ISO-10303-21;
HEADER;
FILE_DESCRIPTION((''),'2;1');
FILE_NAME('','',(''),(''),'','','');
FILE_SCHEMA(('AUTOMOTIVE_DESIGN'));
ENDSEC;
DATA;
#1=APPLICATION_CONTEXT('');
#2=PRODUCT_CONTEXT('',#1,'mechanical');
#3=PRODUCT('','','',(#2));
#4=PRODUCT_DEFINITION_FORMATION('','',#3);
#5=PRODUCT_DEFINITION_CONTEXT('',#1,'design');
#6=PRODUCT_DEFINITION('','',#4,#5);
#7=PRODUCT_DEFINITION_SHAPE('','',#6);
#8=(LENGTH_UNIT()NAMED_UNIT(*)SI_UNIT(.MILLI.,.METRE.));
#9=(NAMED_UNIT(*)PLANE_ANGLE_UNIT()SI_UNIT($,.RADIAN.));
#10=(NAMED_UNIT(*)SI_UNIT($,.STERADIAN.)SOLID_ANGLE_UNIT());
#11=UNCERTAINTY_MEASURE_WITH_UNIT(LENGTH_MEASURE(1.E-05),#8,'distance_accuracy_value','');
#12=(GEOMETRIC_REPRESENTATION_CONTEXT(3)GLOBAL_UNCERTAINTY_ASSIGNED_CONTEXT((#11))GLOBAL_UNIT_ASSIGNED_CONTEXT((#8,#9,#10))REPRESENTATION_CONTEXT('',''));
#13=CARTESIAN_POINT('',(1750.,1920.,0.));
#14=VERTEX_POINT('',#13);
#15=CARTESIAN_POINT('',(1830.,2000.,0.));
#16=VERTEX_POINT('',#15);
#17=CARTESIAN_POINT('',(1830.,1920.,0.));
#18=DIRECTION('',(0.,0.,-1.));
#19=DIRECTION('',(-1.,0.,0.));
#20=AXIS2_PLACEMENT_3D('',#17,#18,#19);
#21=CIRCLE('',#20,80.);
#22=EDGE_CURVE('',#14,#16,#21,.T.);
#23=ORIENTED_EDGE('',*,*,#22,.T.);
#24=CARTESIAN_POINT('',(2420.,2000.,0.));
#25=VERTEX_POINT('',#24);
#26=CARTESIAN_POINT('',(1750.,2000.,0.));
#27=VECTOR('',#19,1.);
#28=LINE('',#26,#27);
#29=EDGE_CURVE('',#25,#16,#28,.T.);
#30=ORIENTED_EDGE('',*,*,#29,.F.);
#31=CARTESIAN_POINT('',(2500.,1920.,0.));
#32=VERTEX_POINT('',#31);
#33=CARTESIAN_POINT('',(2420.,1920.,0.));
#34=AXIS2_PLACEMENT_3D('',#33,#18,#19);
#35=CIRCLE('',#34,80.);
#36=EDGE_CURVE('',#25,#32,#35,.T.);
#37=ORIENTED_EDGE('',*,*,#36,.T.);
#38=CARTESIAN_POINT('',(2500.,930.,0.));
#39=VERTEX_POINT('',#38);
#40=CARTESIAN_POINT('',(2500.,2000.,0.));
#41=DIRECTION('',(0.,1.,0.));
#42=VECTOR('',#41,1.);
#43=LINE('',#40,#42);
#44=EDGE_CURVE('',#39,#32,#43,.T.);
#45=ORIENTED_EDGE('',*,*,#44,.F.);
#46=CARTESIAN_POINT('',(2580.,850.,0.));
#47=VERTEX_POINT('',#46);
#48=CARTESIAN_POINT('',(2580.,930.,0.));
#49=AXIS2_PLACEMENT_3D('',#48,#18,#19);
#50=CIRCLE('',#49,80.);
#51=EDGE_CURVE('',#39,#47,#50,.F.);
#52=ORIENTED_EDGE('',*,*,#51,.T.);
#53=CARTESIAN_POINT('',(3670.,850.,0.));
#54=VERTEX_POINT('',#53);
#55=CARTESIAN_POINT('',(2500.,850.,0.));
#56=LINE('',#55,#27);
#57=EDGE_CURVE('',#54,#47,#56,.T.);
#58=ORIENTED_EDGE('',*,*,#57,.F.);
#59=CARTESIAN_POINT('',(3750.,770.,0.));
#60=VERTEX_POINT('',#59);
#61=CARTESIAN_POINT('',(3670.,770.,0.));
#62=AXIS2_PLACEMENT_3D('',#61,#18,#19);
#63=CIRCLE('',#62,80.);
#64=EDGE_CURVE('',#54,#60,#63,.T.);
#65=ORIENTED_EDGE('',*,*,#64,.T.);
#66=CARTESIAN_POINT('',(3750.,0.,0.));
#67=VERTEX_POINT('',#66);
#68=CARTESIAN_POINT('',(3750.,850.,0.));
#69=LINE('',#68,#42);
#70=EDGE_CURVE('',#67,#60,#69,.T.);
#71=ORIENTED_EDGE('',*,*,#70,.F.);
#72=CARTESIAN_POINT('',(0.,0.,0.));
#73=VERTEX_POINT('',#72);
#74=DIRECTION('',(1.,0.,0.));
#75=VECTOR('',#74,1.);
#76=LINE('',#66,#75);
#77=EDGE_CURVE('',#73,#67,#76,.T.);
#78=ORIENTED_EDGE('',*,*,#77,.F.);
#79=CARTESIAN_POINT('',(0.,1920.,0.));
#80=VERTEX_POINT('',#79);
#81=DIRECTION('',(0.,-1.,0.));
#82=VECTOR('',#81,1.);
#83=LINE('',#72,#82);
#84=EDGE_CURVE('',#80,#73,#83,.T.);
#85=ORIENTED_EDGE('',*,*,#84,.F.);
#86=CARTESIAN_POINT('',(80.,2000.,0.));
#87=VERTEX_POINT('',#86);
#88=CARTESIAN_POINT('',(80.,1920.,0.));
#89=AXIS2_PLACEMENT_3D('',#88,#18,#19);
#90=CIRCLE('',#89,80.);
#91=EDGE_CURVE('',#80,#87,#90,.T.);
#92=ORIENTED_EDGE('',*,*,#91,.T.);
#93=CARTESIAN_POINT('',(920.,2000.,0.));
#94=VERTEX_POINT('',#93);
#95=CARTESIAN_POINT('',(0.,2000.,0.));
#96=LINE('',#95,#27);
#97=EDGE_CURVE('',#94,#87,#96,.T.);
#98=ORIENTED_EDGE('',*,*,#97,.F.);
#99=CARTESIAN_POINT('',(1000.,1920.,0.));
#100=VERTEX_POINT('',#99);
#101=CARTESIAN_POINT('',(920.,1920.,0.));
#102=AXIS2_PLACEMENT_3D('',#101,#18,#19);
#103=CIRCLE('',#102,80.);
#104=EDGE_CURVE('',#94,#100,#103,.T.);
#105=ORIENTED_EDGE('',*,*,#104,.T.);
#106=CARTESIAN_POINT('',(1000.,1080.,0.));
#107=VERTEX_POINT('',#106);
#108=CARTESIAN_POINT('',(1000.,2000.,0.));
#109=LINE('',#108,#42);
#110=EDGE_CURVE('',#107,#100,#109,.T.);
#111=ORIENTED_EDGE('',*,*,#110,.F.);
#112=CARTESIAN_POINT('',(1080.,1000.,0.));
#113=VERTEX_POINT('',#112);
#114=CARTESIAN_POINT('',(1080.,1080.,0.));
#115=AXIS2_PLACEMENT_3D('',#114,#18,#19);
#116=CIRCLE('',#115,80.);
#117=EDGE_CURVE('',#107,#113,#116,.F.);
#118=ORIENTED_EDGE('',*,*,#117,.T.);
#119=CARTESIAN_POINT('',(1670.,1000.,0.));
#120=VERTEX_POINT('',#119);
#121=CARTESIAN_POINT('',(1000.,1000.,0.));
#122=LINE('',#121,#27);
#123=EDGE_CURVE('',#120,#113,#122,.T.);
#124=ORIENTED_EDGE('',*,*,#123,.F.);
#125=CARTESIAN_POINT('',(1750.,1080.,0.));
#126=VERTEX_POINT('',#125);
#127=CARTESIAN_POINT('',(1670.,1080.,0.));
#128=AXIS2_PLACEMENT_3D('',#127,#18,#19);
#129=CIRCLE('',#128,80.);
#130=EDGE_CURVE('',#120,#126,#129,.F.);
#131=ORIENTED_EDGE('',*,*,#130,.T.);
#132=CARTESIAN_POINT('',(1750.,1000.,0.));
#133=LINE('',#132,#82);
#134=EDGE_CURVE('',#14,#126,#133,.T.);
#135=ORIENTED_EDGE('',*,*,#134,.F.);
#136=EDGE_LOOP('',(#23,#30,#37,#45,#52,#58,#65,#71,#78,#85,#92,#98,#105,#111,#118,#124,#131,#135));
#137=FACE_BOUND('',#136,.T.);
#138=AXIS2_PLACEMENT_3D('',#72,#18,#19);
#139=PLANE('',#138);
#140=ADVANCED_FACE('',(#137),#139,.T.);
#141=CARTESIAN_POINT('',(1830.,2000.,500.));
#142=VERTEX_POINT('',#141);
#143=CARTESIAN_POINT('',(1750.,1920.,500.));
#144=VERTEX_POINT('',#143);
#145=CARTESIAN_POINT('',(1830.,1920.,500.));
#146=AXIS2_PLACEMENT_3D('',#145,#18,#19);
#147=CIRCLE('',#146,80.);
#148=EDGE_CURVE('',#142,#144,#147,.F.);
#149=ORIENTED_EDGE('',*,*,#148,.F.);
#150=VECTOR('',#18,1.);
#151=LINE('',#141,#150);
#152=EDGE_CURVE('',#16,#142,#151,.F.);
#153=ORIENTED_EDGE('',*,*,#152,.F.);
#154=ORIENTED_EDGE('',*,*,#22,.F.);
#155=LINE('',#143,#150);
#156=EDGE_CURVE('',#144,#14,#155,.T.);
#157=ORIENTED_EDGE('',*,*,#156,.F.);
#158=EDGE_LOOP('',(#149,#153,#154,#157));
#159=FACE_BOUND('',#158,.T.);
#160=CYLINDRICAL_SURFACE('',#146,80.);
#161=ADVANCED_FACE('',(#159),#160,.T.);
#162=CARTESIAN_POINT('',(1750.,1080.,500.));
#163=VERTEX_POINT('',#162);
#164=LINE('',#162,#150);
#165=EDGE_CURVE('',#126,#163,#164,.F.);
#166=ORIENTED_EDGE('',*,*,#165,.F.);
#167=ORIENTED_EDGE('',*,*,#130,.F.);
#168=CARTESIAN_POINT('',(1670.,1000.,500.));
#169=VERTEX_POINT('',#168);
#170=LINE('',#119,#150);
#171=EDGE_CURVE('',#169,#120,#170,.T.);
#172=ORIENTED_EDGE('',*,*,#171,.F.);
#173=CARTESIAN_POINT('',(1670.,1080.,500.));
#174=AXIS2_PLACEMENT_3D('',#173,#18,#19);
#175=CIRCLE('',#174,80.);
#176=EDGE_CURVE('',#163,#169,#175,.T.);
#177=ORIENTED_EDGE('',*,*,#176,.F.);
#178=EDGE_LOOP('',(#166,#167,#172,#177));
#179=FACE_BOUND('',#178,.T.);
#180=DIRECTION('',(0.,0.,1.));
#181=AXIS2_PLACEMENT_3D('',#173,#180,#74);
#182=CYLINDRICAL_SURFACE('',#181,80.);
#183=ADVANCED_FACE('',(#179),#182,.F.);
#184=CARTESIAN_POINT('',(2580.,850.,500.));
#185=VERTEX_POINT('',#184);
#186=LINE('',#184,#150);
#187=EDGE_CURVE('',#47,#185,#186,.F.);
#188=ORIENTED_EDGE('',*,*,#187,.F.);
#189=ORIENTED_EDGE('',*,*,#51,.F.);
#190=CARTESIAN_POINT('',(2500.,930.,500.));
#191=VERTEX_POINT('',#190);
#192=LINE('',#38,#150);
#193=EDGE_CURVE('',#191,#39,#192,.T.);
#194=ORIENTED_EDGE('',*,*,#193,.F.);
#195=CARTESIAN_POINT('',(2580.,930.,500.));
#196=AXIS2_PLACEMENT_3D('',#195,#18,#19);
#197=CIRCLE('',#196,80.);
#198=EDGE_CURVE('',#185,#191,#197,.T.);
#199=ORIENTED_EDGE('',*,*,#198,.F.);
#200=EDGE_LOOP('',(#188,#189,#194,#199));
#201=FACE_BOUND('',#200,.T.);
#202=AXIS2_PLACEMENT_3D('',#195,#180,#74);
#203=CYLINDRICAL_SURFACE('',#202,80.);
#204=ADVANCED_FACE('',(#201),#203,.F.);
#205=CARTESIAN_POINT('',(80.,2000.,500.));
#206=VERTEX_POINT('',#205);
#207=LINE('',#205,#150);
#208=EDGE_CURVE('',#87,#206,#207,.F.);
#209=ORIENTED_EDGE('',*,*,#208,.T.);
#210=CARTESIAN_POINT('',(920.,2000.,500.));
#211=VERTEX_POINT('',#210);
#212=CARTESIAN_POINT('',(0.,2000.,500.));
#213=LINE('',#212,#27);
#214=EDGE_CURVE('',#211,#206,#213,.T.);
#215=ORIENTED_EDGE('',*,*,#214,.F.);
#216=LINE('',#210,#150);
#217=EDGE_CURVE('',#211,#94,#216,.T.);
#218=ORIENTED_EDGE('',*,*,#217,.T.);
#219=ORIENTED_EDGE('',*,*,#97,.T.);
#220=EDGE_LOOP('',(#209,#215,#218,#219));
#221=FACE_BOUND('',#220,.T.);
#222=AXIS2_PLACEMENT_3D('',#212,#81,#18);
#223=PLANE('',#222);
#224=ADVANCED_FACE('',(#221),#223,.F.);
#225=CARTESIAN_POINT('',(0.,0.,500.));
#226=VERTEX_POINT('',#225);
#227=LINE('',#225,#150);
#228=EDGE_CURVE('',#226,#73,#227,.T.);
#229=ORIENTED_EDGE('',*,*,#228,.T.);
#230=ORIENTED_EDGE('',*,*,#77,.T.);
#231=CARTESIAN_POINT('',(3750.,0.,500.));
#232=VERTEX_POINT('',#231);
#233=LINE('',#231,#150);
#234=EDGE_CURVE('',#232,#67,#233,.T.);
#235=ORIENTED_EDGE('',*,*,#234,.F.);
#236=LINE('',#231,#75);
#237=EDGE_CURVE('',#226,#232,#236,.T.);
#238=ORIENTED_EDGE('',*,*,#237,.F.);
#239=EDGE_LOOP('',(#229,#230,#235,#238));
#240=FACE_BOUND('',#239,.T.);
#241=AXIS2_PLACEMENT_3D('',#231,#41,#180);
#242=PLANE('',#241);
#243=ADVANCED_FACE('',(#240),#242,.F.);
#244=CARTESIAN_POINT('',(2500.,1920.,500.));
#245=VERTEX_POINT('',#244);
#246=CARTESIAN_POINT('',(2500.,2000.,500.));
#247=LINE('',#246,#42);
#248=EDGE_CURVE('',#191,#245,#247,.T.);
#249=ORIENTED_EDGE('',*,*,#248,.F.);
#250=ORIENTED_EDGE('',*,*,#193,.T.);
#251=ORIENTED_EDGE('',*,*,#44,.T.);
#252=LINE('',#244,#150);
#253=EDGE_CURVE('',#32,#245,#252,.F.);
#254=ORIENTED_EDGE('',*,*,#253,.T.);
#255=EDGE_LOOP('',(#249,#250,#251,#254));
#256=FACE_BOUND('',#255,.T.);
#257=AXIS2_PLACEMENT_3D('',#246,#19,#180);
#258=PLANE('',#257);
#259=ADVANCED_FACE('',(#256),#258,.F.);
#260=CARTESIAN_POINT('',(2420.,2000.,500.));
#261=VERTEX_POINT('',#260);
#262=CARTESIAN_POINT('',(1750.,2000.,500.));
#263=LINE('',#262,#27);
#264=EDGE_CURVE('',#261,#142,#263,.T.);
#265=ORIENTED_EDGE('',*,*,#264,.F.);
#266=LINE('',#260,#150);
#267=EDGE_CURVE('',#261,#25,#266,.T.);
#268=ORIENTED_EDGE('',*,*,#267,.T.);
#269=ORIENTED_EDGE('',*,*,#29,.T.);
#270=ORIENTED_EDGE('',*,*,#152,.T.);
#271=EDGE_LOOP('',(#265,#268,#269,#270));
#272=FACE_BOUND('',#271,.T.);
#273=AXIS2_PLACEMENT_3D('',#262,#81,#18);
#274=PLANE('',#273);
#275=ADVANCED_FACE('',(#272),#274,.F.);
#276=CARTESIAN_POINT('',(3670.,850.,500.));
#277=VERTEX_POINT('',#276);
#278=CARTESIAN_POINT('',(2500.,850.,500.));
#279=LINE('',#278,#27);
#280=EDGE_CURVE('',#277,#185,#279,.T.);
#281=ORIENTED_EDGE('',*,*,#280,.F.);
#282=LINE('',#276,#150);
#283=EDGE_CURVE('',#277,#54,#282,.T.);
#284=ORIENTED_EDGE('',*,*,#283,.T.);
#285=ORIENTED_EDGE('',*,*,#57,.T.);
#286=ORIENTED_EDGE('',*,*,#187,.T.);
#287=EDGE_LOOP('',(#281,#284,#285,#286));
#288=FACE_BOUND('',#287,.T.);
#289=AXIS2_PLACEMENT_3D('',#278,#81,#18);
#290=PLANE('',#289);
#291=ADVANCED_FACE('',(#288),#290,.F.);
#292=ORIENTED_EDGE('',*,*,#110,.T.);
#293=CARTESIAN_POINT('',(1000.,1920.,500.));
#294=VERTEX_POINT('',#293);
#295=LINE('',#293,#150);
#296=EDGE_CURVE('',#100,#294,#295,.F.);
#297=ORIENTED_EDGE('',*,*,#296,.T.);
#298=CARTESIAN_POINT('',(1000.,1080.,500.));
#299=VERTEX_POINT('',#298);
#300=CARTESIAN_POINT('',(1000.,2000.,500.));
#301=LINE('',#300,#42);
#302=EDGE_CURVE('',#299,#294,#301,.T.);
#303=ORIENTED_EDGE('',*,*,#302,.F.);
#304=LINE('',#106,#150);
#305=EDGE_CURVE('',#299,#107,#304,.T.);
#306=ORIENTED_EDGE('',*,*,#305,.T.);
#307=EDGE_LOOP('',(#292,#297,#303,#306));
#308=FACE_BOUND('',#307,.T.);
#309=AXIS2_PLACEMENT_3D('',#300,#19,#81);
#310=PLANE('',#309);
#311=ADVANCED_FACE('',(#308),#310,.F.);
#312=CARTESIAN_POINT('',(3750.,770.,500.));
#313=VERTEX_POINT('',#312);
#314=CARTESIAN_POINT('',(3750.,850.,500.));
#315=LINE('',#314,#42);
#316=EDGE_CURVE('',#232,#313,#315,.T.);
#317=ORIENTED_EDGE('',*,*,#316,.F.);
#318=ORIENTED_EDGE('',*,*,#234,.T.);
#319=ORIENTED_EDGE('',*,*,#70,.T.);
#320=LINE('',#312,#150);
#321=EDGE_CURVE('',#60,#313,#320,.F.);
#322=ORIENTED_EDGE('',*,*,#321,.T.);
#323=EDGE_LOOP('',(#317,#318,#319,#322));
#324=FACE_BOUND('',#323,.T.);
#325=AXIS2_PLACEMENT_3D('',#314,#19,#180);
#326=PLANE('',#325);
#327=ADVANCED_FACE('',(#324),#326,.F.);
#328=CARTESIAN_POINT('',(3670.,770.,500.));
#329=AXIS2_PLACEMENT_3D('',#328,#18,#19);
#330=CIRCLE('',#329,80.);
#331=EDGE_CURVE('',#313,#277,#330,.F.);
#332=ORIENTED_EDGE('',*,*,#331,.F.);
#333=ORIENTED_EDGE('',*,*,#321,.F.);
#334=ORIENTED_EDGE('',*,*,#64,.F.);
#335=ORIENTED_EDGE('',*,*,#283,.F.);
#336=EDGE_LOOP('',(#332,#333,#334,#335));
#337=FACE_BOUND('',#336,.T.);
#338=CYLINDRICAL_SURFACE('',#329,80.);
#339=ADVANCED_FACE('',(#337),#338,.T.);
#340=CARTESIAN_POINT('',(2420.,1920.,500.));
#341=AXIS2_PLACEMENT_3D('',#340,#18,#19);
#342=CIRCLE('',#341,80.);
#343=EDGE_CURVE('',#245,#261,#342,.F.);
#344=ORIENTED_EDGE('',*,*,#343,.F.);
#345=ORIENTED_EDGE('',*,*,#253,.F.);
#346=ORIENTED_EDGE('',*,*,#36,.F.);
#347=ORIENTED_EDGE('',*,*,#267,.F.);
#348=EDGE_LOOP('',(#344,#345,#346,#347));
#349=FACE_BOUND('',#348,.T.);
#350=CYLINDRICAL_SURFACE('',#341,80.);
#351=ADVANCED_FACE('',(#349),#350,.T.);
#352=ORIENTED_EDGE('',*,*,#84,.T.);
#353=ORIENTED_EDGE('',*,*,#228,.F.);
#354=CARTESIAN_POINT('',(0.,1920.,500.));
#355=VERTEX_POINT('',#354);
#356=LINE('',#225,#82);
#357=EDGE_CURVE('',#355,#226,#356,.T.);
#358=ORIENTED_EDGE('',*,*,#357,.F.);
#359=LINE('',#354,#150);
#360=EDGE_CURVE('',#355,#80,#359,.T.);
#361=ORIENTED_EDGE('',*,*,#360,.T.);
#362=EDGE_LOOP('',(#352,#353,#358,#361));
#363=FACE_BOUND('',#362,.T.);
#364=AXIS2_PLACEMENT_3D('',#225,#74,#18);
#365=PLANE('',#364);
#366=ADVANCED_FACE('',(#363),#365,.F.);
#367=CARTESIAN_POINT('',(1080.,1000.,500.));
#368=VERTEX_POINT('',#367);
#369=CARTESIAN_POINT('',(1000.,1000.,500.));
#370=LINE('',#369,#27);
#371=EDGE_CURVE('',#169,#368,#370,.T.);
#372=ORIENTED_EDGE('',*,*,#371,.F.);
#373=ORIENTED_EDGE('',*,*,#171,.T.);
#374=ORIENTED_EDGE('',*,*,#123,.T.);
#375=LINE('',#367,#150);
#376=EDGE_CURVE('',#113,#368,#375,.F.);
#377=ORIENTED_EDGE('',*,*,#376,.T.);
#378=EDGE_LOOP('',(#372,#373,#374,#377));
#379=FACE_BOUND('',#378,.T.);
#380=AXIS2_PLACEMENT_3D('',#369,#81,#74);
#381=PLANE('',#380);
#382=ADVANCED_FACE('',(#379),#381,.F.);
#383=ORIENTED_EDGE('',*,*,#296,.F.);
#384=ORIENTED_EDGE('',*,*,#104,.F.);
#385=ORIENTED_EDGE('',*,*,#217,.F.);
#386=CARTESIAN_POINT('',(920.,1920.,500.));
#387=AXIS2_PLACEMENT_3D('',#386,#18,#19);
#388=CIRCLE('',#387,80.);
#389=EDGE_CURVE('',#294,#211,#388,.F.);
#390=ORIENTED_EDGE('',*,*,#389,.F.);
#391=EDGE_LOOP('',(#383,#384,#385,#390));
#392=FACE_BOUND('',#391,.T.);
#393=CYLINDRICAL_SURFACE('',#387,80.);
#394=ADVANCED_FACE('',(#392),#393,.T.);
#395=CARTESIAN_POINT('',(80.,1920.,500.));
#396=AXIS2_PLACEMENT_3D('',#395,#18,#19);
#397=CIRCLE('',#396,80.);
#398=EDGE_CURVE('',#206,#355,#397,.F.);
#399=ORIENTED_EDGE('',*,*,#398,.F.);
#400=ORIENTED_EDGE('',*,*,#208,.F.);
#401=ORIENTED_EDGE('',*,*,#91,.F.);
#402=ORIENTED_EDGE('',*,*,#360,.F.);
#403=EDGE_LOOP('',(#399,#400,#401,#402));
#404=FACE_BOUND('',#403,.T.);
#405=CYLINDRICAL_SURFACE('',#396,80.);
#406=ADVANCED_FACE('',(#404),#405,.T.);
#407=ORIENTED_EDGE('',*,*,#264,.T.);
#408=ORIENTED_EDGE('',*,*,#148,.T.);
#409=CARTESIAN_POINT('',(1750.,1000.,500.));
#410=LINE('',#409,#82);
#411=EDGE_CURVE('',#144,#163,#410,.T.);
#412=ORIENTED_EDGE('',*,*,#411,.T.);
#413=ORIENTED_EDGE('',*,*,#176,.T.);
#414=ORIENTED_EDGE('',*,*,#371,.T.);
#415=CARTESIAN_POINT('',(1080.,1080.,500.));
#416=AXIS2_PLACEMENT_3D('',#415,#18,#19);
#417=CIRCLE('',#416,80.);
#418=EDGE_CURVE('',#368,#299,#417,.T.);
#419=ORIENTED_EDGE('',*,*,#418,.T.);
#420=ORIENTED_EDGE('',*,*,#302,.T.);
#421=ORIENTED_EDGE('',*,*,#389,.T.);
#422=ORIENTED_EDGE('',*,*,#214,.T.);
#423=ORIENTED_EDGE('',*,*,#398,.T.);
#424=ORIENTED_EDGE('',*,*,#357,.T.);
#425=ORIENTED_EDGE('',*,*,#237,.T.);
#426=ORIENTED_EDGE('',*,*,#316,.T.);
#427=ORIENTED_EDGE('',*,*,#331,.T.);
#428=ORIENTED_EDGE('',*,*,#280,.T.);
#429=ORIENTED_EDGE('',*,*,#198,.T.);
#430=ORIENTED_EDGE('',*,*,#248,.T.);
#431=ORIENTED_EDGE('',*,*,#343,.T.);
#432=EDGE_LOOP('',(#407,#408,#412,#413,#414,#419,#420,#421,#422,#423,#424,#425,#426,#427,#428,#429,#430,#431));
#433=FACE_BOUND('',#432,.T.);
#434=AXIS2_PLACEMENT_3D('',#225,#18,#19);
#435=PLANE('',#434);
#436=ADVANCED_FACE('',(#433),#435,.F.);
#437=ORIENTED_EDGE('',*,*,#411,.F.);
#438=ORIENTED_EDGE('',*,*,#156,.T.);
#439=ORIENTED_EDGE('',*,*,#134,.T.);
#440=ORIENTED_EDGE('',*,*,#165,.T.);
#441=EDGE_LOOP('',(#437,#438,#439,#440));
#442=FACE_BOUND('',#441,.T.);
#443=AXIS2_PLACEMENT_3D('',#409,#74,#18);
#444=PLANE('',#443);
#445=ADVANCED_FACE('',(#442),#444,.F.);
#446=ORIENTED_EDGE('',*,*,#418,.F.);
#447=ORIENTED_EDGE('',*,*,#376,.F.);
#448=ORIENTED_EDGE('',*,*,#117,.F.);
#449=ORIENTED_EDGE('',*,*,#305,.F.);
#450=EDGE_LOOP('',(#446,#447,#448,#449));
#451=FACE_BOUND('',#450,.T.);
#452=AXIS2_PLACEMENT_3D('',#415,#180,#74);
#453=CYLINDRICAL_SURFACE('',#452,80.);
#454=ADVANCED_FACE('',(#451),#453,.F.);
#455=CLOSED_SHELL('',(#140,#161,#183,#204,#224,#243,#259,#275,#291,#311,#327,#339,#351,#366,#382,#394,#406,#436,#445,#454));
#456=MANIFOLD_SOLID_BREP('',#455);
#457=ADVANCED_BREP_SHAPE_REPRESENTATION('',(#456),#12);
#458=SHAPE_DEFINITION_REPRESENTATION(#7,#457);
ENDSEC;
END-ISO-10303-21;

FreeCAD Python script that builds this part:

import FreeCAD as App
import Part
import Sketcher
Q = App.Units.Quantity


def edges_at(feature, points):
    """Names of the edges that pass closest to the given points."""
    edges = feature.Shape.Edges
    near = lambda p: min(range(len(edges)), key=lambda i: edges[i].distToShape(Part.Vertex(*p))[0])
    return sorted({f"Edge{near(p) + 1}" for p in points})

doc = App.newDocument("Part")
body = doc.addObject("PartDesign::Body", "Body")

# Sketch on XY plane
sketch1 = body.newObject("Sketcher::SketchObject", "Sketch")
sketch1.AttachmentSupport = (doc.getObject("XY_Plane"), [""])
sketch1.MapMode = "FlatFace"
sketch1.addGeometry(Part.LineSegment(App.Vector(0, 2000, 0), App.Vector(0, 0, 0)), False)
sketch1.addGeometry(Part.LineSegment(App.Vector(0, 0, 0), App.Vector(3750, 0, 0)), False)
sketch1.addGeometry(Part.LineSegment(App.Vector(3750, 0, 0), App.Vector(3750, 850, 0)), False)
sketch1.addGeometry(Part.LineSegment(App.Vector(3750, 850, 0), App.Vector(2500, 850, 0)), False)
sketch1.addGeometry(Part.LineSegment(App.Vector(2500, 850, 0), App.Vector(2500, 2000, 0)), False)
sketch1.addGeometry(Part.LineSegment(App.Vector(2500, 2000, 0), App.Vector(1750, 2000, 0)), False)
sketch1.addGeometry(Part.LineSegment(App.Vector(1750, 2000, 0), App.Vector(1750, 1000, 0)), False)
sketch1.addGeometry(Part.LineSegment(App.Vector(1750, 1000, 0), App.Vector(1000, 1000, 0)), False)
sketch1.addGeometry(Part.LineSegment(App.Vector(1000, 1000, 0), App.Vector(1000, 2000, 0)), False)
sketch1.addGeometry(Part.LineSegment(App.Vector(1000, 2000, 0), App.Vector(0, 2000, 0)), False)
sketch1.addConstraint(Sketcher.Constraint("Coincident", 0, 2, 1, 1))
sketch1.addConstraint(Sketcher.Constraint("Coincident", 1, 2, 2, 1))
sketch1.addConstraint(Sketcher.Constraint("Coincident", 2, 2, 3, 1))
sketch1.addConstraint(Sketcher.Constraint("Coincident", 3, 2, 4, 1))
sketch1.addConstraint(Sketcher.Constraint("Coincident", 4, 2, 5, 1))
sketch1.addConstraint(Sketcher.Constraint("Coincident", 5, 2, 6, 1))
sketch1.addConstraint(Sketcher.Constraint("Coincident", 6, 2, 7, 1))
sketch1.addConstraint(Sketcher.Constraint("Coincident", 7, 2, 8, 1))
sketch1.addConstraint(Sketcher.Constraint("Coincident", 8, 2, 9, 1))
sketch1.addConstraint(Sketcher.Constraint("Coincident", 9, 2, 0, 1))
sketch1.addConstraint(Sketcher.Constraint("Vertical", 0))
sketch1.addConstraint(Sketcher.Constraint("Horizontal", 1))
sketch1.addConstraint(Sketcher.Constraint("Vertical", 2))
sketch1.addConstraint(Sketcher.Constraint("Horizontal", 3))
sketch1.addConstraint(Sketcher.Constraint("Vertical", 4))
sketch1.addConstraint(Sketcher.Constraint("Horizontal", 5))
sketch1.addConstraint(Sketcher.Constraint("Vertical", 6))
sketch1.addConstraint(Sketcher.Constraint("Horizontal", 7))
sketch1.addConstraint(Sketcher.Constraint("Vertical", 8))
sketch1.addConstraint(Sketcher.Constraint("Horizontal", 9))
sketch1.addConstraint(Sketcher.Constraint("Coincident", 0, 2, -1, 1))
sketch1.addConstraint(Sketcher.Constraint("Horizontal", 5, 2, 8, 2))
sketch1.addConstraint(Sketcher.Constraint("Equal", 5, 7))
sketch1.addConstraint(Sketcher.Constraint("Equal", 9, 6))
sketch1.addConstraint(Sketcher.Constraint("DistanceX", 1, 1, 1, 2, Q("3750 mm")))
sketch1.addConstraint(Sketcher.Constraint("DistanceX", 3, 2, 3, 1, Q("1250 mm")))
sketch1.addConstraint(Sketcher.Constraint("DistanceX", 5, 2, 5, 1, Q("750 mm")))
sketch1.addConstraint(Sketcher.Constraint("DistanceY", 0, 2, 0, 1, Q("2000 mm")))
sketch1.addConstraint(Sketcher.Constraint("DistanceY", 2, 1, 2, 2, Q("850 mm")))
pad1 = body.newObject("PartDesign::Pad", "Pad")
pad1.Profile = sketch1
pad1.Length = 500
doc.recompute()

fillet = body.newObject("PartDesign::Fillet", "Fillet")
fillet.Base = (pad1, edges_at(pad1, [
    (0, 2000, 250),
    (1000, 2000, 250),
    (1000, 1000, 250),
    (1750, 1000, 250),
    (1750, 2000, 250),
    (2500, 2000, 250),
    (2500, 850, 250),
    (3750, 850, 250),
]))
fillet.Radius = 80

doc.recompute()
